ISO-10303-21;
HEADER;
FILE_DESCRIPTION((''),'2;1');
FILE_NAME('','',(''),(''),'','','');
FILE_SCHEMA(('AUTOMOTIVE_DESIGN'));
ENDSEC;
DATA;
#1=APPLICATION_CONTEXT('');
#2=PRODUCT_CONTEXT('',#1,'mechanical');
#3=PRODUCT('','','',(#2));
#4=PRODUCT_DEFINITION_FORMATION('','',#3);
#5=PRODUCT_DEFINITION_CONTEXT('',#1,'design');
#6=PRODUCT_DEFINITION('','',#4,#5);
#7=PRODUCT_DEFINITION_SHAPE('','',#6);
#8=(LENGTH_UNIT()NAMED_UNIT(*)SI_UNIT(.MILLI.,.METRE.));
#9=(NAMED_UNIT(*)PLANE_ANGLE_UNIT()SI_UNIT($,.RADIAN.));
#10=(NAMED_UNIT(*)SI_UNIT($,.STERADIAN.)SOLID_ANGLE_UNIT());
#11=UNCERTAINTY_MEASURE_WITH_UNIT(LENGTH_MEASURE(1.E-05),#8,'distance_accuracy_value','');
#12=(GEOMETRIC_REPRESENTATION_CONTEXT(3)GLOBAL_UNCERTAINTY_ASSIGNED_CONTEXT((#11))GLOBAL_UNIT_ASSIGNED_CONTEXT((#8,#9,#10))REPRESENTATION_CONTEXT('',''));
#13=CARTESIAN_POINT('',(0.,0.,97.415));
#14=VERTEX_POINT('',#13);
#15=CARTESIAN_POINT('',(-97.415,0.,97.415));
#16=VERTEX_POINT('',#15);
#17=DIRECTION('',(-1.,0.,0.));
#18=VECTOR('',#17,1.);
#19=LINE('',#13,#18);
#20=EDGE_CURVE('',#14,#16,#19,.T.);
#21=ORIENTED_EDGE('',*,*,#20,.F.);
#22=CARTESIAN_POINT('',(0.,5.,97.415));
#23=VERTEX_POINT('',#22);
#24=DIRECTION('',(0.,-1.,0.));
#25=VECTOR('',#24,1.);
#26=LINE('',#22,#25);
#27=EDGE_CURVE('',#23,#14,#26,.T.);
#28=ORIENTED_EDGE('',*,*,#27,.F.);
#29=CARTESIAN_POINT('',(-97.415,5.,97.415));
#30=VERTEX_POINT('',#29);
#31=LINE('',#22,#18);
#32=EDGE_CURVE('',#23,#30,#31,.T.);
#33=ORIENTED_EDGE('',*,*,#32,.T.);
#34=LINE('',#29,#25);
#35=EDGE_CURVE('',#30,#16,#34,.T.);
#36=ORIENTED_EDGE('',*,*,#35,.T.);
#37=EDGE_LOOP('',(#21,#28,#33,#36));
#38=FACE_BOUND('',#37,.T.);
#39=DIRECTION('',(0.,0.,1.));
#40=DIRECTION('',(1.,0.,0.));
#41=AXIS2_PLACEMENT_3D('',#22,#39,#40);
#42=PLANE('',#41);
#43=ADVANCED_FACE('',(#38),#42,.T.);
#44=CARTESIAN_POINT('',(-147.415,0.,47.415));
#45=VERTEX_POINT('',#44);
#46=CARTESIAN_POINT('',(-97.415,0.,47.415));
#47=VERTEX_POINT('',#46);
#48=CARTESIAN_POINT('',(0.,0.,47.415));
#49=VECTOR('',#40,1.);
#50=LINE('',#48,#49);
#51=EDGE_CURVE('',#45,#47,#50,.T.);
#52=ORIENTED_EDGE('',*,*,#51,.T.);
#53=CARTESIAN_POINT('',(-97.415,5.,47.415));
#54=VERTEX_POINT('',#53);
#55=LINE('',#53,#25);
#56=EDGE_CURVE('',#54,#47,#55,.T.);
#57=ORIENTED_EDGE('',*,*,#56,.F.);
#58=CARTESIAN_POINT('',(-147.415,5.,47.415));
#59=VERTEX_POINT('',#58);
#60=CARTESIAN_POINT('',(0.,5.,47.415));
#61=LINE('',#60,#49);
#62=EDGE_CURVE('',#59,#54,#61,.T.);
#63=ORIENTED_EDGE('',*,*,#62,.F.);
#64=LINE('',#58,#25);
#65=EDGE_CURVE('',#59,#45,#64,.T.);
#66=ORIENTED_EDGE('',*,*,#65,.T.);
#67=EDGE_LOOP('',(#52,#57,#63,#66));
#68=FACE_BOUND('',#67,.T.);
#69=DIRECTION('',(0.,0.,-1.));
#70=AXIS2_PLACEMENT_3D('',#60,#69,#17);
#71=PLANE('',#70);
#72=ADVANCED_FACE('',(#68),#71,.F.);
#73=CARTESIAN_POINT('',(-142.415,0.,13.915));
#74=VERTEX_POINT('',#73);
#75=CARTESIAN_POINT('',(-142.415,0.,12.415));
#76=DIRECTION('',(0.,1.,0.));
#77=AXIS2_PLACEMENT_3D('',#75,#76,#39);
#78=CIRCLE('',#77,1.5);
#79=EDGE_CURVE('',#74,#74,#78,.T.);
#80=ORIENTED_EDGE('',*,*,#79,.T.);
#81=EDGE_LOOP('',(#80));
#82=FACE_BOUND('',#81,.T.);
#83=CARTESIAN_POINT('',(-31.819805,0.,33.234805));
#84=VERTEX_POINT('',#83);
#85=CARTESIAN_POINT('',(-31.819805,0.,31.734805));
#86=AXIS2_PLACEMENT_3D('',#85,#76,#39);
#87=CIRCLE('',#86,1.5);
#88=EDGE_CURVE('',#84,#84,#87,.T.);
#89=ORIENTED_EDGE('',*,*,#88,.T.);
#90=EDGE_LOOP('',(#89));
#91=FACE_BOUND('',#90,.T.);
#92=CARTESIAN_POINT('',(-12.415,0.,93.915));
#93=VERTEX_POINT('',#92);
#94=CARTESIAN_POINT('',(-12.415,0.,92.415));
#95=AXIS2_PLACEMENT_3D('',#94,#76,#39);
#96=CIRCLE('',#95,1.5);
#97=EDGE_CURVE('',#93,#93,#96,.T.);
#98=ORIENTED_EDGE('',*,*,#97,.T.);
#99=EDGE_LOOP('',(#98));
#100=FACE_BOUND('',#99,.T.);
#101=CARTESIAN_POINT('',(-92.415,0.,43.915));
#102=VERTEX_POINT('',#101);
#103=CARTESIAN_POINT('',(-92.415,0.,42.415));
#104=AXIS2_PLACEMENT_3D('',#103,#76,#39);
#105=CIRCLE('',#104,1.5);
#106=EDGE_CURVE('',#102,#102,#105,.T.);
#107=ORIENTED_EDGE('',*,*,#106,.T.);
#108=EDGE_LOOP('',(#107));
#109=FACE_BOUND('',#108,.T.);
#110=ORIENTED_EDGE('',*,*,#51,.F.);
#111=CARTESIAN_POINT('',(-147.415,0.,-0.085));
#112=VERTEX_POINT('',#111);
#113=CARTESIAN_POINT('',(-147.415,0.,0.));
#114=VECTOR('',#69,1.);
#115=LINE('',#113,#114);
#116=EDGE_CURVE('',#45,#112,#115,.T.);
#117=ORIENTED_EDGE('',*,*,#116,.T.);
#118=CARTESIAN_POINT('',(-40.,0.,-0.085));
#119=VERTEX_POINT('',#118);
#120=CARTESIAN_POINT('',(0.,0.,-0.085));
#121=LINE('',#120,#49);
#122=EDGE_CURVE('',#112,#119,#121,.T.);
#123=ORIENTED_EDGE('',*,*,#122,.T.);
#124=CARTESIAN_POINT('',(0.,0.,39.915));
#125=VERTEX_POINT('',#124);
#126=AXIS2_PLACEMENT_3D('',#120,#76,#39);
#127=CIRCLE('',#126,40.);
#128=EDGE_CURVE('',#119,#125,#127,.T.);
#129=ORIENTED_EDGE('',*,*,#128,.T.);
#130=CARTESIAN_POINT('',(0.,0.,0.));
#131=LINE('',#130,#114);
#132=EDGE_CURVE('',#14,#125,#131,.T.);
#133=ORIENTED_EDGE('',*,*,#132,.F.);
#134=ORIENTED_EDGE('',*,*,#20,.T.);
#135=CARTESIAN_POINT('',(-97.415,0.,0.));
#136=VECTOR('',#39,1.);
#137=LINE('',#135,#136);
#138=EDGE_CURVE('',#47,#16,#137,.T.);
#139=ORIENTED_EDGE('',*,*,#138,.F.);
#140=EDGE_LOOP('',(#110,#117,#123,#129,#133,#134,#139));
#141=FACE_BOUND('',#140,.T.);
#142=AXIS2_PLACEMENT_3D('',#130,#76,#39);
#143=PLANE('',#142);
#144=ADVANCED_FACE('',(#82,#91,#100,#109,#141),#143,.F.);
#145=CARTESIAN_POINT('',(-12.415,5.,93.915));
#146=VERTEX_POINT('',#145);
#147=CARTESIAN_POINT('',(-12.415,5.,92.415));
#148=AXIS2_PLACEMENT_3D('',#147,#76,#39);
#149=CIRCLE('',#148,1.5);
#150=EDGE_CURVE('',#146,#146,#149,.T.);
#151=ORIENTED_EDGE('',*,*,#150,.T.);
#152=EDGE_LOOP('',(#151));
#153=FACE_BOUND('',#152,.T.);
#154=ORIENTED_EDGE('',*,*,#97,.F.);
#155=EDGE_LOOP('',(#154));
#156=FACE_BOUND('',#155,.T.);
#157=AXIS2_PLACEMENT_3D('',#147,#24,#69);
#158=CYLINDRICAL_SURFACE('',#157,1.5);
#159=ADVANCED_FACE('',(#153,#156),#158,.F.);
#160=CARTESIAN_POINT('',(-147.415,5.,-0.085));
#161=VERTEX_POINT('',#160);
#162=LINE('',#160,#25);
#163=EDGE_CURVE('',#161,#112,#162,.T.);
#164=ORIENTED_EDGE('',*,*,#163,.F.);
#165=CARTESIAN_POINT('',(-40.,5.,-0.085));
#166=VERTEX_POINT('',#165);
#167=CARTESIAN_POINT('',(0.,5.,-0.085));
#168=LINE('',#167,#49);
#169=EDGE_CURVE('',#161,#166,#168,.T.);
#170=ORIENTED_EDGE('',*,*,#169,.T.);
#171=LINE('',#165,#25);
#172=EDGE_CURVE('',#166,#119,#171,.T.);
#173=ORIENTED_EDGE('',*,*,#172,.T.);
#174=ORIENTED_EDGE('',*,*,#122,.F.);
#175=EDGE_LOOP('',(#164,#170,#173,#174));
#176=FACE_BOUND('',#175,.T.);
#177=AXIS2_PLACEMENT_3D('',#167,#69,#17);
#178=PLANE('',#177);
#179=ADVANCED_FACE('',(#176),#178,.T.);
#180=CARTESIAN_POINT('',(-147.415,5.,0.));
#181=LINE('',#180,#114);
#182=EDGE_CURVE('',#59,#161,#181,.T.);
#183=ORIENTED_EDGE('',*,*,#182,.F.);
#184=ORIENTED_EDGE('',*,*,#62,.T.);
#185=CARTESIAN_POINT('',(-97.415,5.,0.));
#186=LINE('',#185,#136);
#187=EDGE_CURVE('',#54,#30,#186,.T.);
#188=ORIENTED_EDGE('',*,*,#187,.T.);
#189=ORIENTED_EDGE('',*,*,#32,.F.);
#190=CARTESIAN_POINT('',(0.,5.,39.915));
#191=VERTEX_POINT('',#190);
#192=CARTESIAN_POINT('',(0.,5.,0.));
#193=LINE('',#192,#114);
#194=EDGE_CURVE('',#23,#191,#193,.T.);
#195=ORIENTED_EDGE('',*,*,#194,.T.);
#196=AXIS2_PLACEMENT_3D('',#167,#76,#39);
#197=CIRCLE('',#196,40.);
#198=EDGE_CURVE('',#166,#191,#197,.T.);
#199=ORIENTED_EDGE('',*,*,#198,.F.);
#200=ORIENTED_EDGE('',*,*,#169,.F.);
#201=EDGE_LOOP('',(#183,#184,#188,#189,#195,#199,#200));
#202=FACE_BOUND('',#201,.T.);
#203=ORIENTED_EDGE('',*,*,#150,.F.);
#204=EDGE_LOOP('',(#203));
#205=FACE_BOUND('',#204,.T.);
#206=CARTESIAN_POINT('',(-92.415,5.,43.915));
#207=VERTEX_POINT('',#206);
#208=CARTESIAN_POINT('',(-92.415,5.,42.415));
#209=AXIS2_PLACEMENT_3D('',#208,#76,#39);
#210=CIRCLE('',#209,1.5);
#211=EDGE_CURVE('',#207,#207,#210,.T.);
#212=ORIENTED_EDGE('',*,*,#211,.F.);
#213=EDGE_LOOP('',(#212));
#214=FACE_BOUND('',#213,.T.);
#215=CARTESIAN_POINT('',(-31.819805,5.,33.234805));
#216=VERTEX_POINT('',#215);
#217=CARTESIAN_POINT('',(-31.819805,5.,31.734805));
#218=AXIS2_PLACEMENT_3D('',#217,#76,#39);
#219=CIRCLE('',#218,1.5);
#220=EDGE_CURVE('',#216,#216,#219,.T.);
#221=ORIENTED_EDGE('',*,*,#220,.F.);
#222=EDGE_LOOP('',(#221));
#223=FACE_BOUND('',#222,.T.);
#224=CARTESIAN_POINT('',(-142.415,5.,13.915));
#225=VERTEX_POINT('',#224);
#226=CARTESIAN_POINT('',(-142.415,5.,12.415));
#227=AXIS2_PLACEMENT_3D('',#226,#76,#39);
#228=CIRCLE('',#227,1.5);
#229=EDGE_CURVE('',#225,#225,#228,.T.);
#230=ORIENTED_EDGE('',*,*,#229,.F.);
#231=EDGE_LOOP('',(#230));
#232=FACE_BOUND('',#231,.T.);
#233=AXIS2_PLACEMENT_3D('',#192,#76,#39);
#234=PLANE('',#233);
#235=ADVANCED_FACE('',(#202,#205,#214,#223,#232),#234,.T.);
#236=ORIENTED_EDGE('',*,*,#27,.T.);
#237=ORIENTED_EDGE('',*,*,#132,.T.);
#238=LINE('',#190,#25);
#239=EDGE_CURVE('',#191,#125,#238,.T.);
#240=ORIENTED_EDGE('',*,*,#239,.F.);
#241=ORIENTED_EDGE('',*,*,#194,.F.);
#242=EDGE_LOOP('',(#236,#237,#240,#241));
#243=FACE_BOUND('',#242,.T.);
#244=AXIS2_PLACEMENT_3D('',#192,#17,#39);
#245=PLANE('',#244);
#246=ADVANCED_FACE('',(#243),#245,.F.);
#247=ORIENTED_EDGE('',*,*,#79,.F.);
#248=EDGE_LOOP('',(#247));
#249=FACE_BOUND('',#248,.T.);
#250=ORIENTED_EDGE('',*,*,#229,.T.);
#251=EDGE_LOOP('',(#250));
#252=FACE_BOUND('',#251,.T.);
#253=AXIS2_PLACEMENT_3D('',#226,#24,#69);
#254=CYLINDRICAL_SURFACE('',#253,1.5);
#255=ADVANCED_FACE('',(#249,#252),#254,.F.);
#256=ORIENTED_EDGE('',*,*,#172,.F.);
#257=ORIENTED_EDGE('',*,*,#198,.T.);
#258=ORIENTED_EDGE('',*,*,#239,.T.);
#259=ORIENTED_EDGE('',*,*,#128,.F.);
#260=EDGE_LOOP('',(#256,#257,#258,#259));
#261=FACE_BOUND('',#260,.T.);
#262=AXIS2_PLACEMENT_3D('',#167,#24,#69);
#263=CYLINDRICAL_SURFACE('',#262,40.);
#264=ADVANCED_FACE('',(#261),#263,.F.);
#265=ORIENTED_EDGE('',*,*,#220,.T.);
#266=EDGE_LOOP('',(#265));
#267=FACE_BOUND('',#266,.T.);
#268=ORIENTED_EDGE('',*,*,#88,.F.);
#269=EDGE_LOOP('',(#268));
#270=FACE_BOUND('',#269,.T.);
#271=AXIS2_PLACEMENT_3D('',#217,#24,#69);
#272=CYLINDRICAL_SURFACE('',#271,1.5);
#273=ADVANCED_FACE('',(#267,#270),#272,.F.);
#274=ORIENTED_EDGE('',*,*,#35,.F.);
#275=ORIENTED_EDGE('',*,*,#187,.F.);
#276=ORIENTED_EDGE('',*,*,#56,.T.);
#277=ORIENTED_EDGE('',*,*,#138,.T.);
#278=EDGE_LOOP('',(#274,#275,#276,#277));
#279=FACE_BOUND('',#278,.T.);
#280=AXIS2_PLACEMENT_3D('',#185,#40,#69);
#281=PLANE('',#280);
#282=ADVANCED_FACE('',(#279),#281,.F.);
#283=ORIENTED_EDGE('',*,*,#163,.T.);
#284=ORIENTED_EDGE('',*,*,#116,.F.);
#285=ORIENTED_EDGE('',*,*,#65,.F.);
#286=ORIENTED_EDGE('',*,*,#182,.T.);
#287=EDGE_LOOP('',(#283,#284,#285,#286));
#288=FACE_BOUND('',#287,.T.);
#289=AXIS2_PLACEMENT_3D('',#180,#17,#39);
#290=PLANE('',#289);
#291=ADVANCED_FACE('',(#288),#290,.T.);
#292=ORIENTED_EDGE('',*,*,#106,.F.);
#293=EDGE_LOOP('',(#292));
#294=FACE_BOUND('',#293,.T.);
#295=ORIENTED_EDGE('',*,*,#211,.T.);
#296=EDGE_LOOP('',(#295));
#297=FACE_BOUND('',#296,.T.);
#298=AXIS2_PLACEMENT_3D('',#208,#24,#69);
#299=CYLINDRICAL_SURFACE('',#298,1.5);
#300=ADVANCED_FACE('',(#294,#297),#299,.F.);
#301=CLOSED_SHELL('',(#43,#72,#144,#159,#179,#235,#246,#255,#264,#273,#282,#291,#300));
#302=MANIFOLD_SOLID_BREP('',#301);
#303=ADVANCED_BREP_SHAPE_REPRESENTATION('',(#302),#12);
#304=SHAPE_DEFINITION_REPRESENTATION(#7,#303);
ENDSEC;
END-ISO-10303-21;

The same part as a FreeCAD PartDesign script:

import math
import FreeCAD as App
import Part
import Sketcher
Q = App.Units.Quantity

doc = App.newDocument("Part")
body = doc.addObject("PartDesign::Body", "Body")

sketch1 = body.newObject("Sketcher::SketchObject", "Sketch")
sketch1.AttachmentSupport = (doc.getObject("XZ_Plane"), [""])
sketch1.MapMode = "FlatFace"
sketch1.addGeometry(Part.LineSegment(App.Vector(-97.415, 97.415, 0), App.Vector(0, 97.415, 0)), False)
sketch1.addGeometry(Part.LineSegment(App.Vector(0, 97.415, 0), App.Vector(0, 39.915, 0)), False)
sketch1.addGeometry(Part.ArcOfCircle(Part.Circle(App.Vector(0, -0.085, 0), App.Vector(0, 0, 1), 40), math.radians(90), math.radians(180)), False)
sketch1.addGeometry(Part.LineSegment(App.Vector(-40, -0.085, 0), App.Vector(-147.415, -0.085, 0)), False)
sketch1.addGeometry(Part.LineSegment(App.Vector(-147.415, -0.085, 0), App.Vector(-147.415, 47.415, 0)), False)
sketch1.addGeometry(Part.LineSegment(App.Vector(-147.415, 47.415, 0), App.Vector(-97.415, 47.415, 0)), False)
sketch1.addGeometry(Part.LineSegment(App.Vector(-97.415, 47.415, 0), App.Vector(-97.415, 97.415, 0)), False)
sketch1.addGeometry(Part.Circle(App.Vector(-12.415, 92.415, 0), App.Vector(0, 0, 1), 1.5), False)
sketch1.addGeometry(Part.Circle(App.Vector(-92.415, 42.415, 0), App.Vector(0, 0, 1), 1.5), False)
sketch1.addGeometry(Part.Circle(App.Vector(-142.415, 12.415, 0), App.Vector(0, 0, 1), 1.5), False)
sketch1.addGeometry(Part.Circle(App.Vector(-31.819805, 31.734805, 0), App.Vector(0, 0, 1), 1.5), False)
sketch1.addConstraint(Sketcher.Constraint("Coincident", 0, 2, 1, 1))
sketch1.addConstraint(Sketcher.Constraint("Coincident", 1, 2, 2, 1))
sketch1.addConstraint(Sketcher.Constraint("Coincident", 2, 2, 3, 1))
sketch1.addConstraint(Sketcher.Constraint("Coincident", 3, 2, 4, 1))
sketch1.addConstraint(Sketcher.Constraint("Coincident", 4, 2, 5, 1))
sketch1.addConstraint(Sketcher.Constraint("Coincident", 5, 2, 6, 1))
sketch1.addConstraint(Sketcher.Constraint("Coincident", 6, 2, 0, 1))
sketch1.addConstraint(Sketcher.Constraint("Horizontal", 0))
sketch1.addConstraint(Sketcher.Constraint("Vertical", 1))
sketch1.addConstraint(Sketcher.Constraint("Horizontal", 3))
sketch1.addConstraint(Sketcher.Constraint("Vertical", 4))
sketch1.addConstraint(Sketcher.Constraint("Horizontal", 5))
sketch1.addConstraint(Sketcher.Constraint("Vertical", 6))
sketch1.addConstraint(Sketcher.Constraint("Equal", 7, 8))
sketch1.addConstraint(Sketcher.Constraint("Equal", 8, 9))
sketch1.addConstraint(Sketcher.Constraint("Equal", 9, 10))
sketch1.addConstraint(Sketcher.Constraint("PointOnObject", 2, 3, -2))
sketch1.addConstraint(Sketcher.Constraint("PointOnObject", 0, 2, -2))
sketch1.addConstraint(Sketcher.Constraint("Equal", 5, 6))
sketch1.addConstraint(Sketcher.Constraint("Diameter", 7, Q("3 mm")))
sketch1.addConstraint(Sketcher.Constraint("Radius", 2, Q("40 mm")))
sketch1.addConstraint(Sketcher.Constraint("DistanceX", 5, 1, 5, 2, Q("50 mm")))
sketch1.addConstraint(Sketcher.Constraint("DistanceY", 1, 2, 1, 1, Q("57.5 mm")))
sketch1.addConstraint(Sketcher.Constraint("DistanceY", 4, 1, 4, 2, Q("47.5 mm")))
sketch1.addConstraint(Sketcher.Constraint("DistanceX", 8, 3, 7, 3, Q("80 mm")))
sketch1.addConstraint(Sketcher.Constraint("DistanceY", 8, 3, 7, 3, Q("50 mm")))
sketch1.addConstraint(Sketcher.Constraint("DistanceX", 9, 3, 8, 3, Q("50 mm")))
sketch1.addConstraint(Sketcher.Constraint("DistanceY", 9, 3, 8, 3, Q("30 mm")))
sketch1.addConstraint(Sketcher.Constraint("DistanceY", 7, 3, 0, 2, Q("5 mm")))
sketch1.addConstraint(Sketcher.Constraint("DistanceX", 3, 2, 9, 3, Q("5 mm")))
sketch1.addConstraint(Sketcher.Constraint("DistanceX", 0, 1, 0, 2, Q("97.415 mm")))
sketch1.addConstraint(Sketcher.Constraint("DistanceY", 2, 3, -1, 1, Q("0.085 mm")))
sketch1.addConstraint(Sketcher.Constraint("DistanceX", 10, 3, -1, 1, Q("31.819805 mm")))
sketch1.addConstraint(Sketcher.Constraint("DistanceY", -1, 1, 10, 3, Q("31.734805 mm")))
pad1 = body.newObject("PartDesign::Pad", "Pad")
pad1.Profile = sketch1
pad1.Length = 5
pad1.Reversed = True

doc.recompute()
